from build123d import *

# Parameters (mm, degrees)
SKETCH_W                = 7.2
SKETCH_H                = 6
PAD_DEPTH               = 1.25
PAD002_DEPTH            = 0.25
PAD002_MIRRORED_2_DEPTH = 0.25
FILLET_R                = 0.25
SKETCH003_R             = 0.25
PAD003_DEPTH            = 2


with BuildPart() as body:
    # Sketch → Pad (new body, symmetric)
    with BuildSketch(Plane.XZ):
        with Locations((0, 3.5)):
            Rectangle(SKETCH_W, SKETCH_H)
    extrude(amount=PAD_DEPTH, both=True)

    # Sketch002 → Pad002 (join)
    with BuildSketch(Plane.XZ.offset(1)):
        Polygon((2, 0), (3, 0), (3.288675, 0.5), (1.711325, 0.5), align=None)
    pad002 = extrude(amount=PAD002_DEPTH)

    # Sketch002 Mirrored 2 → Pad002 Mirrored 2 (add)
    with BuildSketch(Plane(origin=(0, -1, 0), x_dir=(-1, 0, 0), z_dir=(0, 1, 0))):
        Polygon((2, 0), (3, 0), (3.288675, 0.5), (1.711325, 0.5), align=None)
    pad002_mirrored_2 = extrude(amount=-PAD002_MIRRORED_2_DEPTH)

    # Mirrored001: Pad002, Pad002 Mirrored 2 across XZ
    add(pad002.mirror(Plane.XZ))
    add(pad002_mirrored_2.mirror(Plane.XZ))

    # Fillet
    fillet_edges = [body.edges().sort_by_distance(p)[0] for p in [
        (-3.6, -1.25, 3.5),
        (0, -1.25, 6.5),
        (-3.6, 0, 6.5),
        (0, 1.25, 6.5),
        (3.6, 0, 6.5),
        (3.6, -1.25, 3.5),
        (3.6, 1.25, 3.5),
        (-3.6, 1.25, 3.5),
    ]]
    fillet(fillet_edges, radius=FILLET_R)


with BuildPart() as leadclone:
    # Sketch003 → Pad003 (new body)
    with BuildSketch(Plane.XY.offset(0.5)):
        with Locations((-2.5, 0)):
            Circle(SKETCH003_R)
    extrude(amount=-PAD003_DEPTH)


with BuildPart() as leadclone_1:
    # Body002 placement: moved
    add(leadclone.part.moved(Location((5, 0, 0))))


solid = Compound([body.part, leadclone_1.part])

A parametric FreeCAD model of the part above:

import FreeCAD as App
import Part
import Sketcher
Q = App.Units.Quantity


def edges_at(feature, points):
    """Names of the edges that pass closest to the given points."""
    edges = feature.Shape.Edges
    near = lambda p: min(range(len(edges)), key=lambda i: edges[i].distToShape(Part.Vertex(*p))[0])
    return sorted({f"Edge{near(p) + 1}" for p in points})


def add_polygon(sketch, points):
    """Adds a closed chain of lines whose ends are joined by coincident constraints."""
    first, n = sketch.GeometryCount, len(points)
    for a, b in zip(points, points[1:] + points[:1]):
        sketch.addGeometry(Part.LineSegment(App.Vector(*a, 0), App.Vector(*b, 0)), False)
    for i in range(n):
        sketch.addConstraint(Sketcher.Constraint("Coincident", first + i, 2, first + (i + 1) % n, 1))

doc = App.newDocument("Part")
params = doc.addObject("Spreadsheet::Sheet", "Params")
for row, (alias, value) in enumerate([
    ("sketch1_height", "6 mm"),
    ("sketch1_width", "7.2 mm"),
    ("pad1_length", "2.5 mm"),
    ("sketch2_width", "1 mm"),
    ("pad2_length", "0.25 mm"),
    ("sketch3_width", "1 mm"),
    ("pad3_length", "0.25 mm"),
    ("fillet_radius", "0.25 mm"),
    ("sketch4_diameter", "0.5 mm"),
    ("pad4_length", "2 mm"),
], start=1):
    params.set(f"A{row}", alias)
    params.set(f"B{row}", "=" + value)
    params.setAlias(f"B{row}", alias)

body = doc.addObject("PartDesign::Body", "Body")

sketch1 = doc.addObject("Sketcher::SketchObject", "Sketch")
body.addObject(sketch1)
sketch1.AttachmentSupport = (doc.XZ_Plane, [""])
sketch1.MapMode = "FlatFace"
add_polygon(sketch1, [(-3.6, 6.5), (-3.6, 0.5), (3.6, 0.5), (3.6, 6.5)])
sketch1.addConstraint([
    Sketcher.Constraint("Vertical", 0),
    Sketcher.Constraint("Horizontal", 1),
    Sketcher.Constraint("Vertical", 2),
    Sketcher.Constraint("Horizontal", 3),
    Sketcher.Constraint("DistanceY", 0, 2, 0, 1, Q("6 mm")),
    Sketcher.Constraint("DistanceX", 1, 1, 1, 2, Q("7.2 mm")),
    Sketcher.Constraint("DistanceX", 0, 2, -1, 1, Q("3.6 mm")),
    Sketcher.Constraint("DistanceY", -1, 1, 0, 2, Q("0.5 mm")),
])
sketch1.setExpression("Constraints[8]", "Params.sketch1_height")
sketch1.setExpression("Constraints[9]", "Params.sketch1_width")
pad1 = doc.addObject("PartDesign::Pad", "Pad")
body.addObject(pad1)
pad1.Profile = sketch1
pad1.setExpression("Length", "Params.pad1_length")
pad1.Midplane = True

sketch2 = doc.addObject("Sketcher::SketchObject", "Sketch001")
body.addObject(sketch2)
sketch2.AttachmentSupport = (doc.XZ_Plane, [""])
sketch2.MapMode = "FlatFace"
sketch2.AttachmentOffset = App.Placement(App.Vector(0, 0, 1), App.Rotation())
add_polygon(sketch2, [(2, 0), (3, 0), (3.288675, 0.5), (1.711325, 0.5)])
sketch2.addConstraint([
    Sketcher.Constraint("Horizontal", 0),
    Sketcher.Constraint("Horizontal", 2),
    Sketcher.Constraint("PointOnObject", 0, 2, -1),
    Sketcher.Constraint("Equal", 1, 3),
    Sketcher.Constraint("DistanceX", 0, 1, 0, 2, Q("1 mm")),
    Sketcher.Constraint("Angle", 1, Q("60.000012 deg")),
    Sketcher.Constraint("DistanceX", -1, 1, 0, 2, Q("3 mm")),
    Sketcher.Constraint("DistanceY", -1, 1, 1, 2, Q("0.5 mm")),
])
sketch2.setExpression("Constraints[8]", "Params.sketch2_width")
pad2 = doc.addObject("PartDesign::Pad", "Pad001")
body.addObject(pad2)
pad2.Profile = sketch2
pad2.setExpression("Length", "Params.pad2_length")

sketch3 = doc.addObject("Sketcher::SketchObject", "Sketch002")
body.addObject(sketch3)
sketch3.AttachmentSupport = (doc.XZ_Plane, [""])
sketch3.MapMode = "FlatFace"
sketch3.AttachmentOffset = App.Placement(App.Vector(0, 0, 1), App.Rotation())
add_polygon(sketch3, [(-2, 0), (-3, 0), (-3.288675, 0.5), (-1.711325, 0.5)])
sketch3.addConstraint([
    Sketcher.Constraint("Horizontal", 0),
    Sketcher.Constraint("Horizontal", 2),
    Sketcher.Constraint("PointOnObject", 0, 2, -1),
    Sketcher.Constraint("Equal", 1, 3),
    Sketcher.Constraint("DistanceX", 0, 2, 0, 1, Q("1 mm")),
    Sketcher.Constraint("Angle", 1, Q("119.999988 deg")),
    Sketcher.Constraint("DistanceX", 0, 2, -1, 1, Q("3 mm")),
    Sketcher.Constraint("DistanceY", -1, 1, 1, 2, Q("0.5 mm")),
])
sketch3.setExpression("Constraints[8]", "Params.sketch3_width")
pad3 = doc.addObject("PartDesign::Pad", "Pad002")
body.addObject(pad3)
pad3.Profile = sketch3
pad3.setExpression("Length", "Params.pad3_length")
doc.recompute()

mirrored = doc.addObject("PartDesign::Mirrored", "Mirrored")
body.addObject(mirrored)
mirrored.Originals = [pad2, pad3]
mirrored.MirrorPlane = (doc.XZ_Plane, [""])
body.Tip = mirrored
doc.recompute()

fillet = doc.addObject("PartDesign::Fillet", "Fillet")
body.addObject(fillet)
fillet.Base = (mirrored, edges_at(mirrored, [
    (-3.6, -1.25, 3.5),
    (0, -1.25, 6.5),
    (-3.6, 0, 6.5),
    (0, 1.25, 6.5),
    (3.6, 0, 6.5),
    (3.6, -1.25, 3.5),
    (3.6, 1.25, 3.5),
    (-3.6, 1.25, 3.5),
]))
fillet.setExpression("Radius", "Params.fillet_radius")
body2 = doc.addObject("PartDesign::Body", "Body001")

sketch4 = doc.addObject("Sketcher::SketchObject", "Sketch003")
body2.addObject(sketch4)
sketch4.AttachmentSupport = (doc.getObject("XY_Plane001"), [""])
sketch4.MapMode = "FlatFace"
sketch4.AttachmentOffset = App.Placement(App.Vector(0, 0, 0.5), App.Rotation())
sketch4.addGeometry(Part.Circle(App.Vector(-2.5, 0, 0), App.Vector(0, 0, 1), 0.25), False)
sketch4.addConstraint([
    Sketcher.Constraint("PointOnObject", 0, 3, -1),
    Sketcher.Constraint("Diameter", 0, Q("0.5 mm")),
    Sketcher.Constraint("DistanceX", 0, 3, -1, 1, Q("2.5 mm")),
])
sketch4.setExpression("Constraints[1]", "Params.sketch4_diameter")
pad4 = doc.addObject("PartDesign::Pad", "Pad003")
body2.addObject(pad4)
pad4.Profile = sketch4
pad4.setExpression("Length", "Params.pad4_length")
pad4.Reversed = True
body3 = doc.addObject("PartDesign::Body", "Body002")
doc.recompute()

body2.Placement = App.Placement(App.Vector(5, 0, 0), App.Rotation(App.Vector(0, 0, 1), 0))
boolean = doc.addObject("PartDesign::Boolean", "Boolean")
body3.addObject(boolean)
boolean.Type = "Fuse"
boolean.addObjects([body2])

doc.recompute()
